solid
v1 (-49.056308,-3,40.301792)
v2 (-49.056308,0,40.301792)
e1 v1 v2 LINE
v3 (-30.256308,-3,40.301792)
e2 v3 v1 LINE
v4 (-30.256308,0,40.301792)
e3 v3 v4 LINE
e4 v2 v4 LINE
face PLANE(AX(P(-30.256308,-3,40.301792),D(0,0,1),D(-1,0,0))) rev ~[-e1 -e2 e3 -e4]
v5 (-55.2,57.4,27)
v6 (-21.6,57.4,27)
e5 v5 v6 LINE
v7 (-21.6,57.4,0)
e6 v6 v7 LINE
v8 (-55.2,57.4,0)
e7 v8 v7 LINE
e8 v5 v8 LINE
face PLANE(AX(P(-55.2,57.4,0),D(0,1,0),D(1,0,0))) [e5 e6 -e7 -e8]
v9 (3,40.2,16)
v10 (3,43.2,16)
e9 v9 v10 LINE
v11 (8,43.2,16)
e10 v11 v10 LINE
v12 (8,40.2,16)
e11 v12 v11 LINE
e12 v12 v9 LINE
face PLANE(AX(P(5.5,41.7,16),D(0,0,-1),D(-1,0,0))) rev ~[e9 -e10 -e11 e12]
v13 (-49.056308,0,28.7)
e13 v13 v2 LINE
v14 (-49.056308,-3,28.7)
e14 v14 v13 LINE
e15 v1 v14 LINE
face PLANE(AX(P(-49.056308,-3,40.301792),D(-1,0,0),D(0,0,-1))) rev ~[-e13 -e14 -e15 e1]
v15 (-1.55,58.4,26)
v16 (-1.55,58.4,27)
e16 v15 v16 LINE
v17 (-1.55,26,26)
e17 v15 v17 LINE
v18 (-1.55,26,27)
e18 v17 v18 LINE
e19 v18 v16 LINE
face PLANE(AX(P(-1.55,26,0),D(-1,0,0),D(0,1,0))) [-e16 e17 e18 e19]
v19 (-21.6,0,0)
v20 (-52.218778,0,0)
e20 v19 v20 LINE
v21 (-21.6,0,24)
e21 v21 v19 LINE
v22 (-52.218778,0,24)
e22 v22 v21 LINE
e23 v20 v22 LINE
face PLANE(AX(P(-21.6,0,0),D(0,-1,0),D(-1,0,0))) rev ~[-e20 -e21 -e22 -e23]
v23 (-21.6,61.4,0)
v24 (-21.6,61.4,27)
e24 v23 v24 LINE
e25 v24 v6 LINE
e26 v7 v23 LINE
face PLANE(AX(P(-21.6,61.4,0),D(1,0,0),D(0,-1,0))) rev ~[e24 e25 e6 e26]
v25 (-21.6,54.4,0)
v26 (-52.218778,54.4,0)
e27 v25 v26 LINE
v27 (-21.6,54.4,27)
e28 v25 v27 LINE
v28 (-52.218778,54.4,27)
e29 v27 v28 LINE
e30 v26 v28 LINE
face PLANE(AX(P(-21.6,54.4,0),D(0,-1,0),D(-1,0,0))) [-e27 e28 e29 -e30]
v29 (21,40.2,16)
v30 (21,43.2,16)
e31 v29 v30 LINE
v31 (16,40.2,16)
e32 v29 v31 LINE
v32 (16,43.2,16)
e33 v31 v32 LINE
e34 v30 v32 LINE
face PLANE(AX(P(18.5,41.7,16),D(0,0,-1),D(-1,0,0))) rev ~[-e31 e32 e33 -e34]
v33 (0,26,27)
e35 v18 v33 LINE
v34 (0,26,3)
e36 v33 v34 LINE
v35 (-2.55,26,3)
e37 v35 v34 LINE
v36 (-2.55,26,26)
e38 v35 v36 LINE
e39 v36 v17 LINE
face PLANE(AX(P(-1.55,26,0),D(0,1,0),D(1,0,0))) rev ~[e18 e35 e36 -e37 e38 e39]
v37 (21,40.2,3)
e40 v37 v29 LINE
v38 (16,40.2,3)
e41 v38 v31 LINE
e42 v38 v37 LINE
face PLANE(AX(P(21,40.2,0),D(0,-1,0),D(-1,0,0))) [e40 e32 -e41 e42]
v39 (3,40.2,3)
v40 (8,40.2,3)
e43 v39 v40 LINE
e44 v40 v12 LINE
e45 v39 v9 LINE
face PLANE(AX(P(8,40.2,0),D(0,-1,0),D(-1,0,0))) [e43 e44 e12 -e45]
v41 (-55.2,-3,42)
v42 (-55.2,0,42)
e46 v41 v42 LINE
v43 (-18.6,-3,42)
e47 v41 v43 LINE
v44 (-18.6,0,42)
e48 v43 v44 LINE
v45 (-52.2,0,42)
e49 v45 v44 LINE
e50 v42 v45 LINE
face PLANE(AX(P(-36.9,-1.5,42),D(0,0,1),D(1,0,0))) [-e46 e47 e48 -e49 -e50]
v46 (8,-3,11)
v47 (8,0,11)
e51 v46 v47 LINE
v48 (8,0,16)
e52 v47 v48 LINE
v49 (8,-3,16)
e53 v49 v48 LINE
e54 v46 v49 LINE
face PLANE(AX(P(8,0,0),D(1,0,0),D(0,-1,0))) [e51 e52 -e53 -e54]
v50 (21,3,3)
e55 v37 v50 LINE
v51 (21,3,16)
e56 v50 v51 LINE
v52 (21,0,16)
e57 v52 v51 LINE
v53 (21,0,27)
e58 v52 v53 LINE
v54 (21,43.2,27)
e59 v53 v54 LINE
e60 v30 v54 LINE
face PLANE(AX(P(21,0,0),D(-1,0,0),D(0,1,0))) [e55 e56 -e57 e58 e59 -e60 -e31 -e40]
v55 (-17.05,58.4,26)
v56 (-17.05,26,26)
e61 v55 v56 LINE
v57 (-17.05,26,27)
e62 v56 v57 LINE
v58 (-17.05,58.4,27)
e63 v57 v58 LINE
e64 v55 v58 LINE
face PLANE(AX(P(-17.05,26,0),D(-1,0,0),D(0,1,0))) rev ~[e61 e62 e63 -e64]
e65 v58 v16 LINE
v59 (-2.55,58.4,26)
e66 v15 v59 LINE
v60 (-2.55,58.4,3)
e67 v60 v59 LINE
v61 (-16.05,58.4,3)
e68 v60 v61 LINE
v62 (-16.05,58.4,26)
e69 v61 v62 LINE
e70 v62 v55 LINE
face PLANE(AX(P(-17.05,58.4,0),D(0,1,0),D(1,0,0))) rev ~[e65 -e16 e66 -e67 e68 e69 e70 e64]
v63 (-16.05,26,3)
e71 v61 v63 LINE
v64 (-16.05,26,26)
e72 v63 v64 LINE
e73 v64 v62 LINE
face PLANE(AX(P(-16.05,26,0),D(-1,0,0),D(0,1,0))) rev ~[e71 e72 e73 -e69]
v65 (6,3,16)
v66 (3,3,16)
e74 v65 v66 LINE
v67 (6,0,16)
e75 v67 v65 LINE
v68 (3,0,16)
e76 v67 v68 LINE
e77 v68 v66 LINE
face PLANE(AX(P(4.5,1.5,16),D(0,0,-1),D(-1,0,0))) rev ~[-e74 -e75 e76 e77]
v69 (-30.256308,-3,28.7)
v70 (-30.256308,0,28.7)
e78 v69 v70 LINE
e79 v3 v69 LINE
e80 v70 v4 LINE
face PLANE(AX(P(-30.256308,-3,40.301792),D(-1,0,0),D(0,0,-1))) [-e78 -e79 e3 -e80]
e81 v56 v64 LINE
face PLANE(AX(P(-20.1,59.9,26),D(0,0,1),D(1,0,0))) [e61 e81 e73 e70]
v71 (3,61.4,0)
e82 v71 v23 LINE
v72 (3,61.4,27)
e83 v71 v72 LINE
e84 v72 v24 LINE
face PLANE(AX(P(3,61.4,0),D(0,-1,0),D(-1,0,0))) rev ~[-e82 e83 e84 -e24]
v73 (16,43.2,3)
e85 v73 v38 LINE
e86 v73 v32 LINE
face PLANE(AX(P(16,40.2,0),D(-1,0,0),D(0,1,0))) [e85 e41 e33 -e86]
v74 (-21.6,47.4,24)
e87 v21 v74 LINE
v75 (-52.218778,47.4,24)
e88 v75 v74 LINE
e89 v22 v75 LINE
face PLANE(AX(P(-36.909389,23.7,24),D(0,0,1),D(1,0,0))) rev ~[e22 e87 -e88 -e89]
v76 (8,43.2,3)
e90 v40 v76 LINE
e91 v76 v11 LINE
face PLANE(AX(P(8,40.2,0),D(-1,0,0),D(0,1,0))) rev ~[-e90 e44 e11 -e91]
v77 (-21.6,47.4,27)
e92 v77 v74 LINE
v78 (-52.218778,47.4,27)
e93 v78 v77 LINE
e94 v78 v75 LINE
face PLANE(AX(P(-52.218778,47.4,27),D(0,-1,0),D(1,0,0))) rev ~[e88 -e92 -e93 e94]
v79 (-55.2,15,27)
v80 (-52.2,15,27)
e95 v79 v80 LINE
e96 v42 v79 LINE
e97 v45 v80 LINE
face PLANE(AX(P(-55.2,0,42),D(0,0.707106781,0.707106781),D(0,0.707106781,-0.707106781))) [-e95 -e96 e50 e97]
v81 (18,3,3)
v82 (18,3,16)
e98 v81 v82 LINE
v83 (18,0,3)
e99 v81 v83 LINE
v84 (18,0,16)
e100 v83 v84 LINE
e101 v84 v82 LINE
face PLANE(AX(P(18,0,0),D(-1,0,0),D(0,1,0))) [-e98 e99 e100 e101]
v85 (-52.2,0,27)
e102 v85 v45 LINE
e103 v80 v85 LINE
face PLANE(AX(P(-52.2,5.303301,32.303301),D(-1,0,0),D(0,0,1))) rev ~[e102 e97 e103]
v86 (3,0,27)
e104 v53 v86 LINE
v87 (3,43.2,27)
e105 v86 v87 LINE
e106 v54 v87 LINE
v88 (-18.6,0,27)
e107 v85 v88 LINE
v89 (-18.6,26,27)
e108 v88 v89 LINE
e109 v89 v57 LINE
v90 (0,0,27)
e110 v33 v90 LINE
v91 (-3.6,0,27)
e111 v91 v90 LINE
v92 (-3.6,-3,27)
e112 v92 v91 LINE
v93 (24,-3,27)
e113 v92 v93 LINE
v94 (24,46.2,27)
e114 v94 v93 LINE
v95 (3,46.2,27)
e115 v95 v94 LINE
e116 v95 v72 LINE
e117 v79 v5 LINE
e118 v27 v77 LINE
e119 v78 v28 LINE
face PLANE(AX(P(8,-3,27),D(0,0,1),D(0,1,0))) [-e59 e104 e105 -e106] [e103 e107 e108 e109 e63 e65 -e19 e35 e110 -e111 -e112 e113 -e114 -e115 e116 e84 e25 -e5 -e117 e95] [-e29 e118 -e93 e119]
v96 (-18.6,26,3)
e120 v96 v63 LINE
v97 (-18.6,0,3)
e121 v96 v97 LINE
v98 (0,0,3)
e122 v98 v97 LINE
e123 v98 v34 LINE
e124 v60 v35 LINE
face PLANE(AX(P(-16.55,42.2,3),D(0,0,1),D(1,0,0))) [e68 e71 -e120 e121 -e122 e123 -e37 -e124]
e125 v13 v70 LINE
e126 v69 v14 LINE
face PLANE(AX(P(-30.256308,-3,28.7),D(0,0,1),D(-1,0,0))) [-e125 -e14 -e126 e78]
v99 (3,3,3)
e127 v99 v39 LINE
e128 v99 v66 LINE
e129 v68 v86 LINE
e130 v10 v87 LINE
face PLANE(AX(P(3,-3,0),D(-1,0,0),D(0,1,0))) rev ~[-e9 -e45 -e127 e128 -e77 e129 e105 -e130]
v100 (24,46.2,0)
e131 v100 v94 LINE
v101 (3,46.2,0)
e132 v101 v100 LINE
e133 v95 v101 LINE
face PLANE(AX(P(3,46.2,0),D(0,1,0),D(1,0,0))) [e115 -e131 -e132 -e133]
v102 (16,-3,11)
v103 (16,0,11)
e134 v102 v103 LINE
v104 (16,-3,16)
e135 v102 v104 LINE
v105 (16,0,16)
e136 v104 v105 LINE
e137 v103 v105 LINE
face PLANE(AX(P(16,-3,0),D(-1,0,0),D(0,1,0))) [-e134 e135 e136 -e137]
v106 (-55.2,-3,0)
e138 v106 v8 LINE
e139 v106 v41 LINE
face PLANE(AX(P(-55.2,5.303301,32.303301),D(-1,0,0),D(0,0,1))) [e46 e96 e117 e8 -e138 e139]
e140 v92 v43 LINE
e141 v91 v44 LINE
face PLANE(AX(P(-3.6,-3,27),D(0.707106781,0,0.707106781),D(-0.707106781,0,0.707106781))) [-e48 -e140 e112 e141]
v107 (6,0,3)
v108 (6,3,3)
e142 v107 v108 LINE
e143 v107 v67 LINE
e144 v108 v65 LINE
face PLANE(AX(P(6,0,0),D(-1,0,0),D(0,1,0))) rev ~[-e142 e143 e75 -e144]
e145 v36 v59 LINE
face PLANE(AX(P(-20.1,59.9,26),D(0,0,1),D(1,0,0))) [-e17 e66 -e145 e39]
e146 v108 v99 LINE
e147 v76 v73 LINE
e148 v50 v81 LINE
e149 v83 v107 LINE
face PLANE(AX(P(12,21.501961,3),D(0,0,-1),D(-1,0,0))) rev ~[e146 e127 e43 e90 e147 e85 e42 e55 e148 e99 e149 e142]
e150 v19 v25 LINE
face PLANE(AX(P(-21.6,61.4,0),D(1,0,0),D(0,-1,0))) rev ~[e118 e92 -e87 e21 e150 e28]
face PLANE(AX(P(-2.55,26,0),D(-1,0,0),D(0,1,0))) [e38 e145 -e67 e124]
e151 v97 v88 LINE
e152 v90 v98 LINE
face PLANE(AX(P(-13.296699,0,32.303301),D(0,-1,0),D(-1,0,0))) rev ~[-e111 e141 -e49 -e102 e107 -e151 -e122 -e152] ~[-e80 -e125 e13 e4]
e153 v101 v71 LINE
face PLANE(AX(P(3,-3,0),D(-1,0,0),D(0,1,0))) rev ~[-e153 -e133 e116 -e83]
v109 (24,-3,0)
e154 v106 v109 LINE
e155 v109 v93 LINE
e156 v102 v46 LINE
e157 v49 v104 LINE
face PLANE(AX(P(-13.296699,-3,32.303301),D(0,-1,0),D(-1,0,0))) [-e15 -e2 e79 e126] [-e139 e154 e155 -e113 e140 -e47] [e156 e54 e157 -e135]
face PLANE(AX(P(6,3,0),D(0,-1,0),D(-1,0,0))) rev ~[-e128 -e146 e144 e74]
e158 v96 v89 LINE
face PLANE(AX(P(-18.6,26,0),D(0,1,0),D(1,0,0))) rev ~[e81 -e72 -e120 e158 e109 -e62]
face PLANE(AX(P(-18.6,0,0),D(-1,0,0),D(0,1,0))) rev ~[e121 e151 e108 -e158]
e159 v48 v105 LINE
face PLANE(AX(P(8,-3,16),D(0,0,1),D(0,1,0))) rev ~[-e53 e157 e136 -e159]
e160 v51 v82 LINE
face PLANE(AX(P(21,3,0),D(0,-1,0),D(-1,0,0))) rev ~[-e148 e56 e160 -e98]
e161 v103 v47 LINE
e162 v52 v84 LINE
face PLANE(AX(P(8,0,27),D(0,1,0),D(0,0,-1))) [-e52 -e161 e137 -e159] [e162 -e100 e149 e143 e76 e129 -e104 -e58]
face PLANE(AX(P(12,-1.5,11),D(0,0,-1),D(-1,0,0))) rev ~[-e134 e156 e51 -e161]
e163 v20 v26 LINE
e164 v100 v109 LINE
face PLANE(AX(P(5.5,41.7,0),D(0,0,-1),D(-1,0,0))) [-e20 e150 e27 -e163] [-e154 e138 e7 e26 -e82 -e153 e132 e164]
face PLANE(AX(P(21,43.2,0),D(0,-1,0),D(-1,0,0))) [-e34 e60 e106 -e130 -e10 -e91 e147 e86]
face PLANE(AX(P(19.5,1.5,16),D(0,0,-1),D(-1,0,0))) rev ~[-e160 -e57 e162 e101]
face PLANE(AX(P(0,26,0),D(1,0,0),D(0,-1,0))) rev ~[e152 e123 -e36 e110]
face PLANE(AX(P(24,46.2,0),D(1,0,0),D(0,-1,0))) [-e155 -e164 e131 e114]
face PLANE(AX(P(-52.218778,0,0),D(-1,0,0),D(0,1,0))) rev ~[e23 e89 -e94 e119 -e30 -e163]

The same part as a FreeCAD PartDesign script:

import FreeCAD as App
import Part
import Sketcher
Q = App.Units.Quantity

doc = App.newDocument("Part")
body = doc.addObject("PartDesign::Body", "Body")

sketch1 = doc.addObject("Sketcher::SketchObject", "Sketch")
body.addObject(sketch1)
sketch1.AttachmentSupport = (doc.XY_Plane, [""])
sketch1.MapMode = "FlatFace"
sketch1.addGeometry([
    Part.LineSegment(App.Vector(3, 61, 0), App.Vector(-22, 61, 0)),
    Part.LineSegment(App.Vector(-22, 61, 0), App.Vector(-22, -3, 0)),
    Part.LineSegment(App.Vector(-22, -3, 0), App.Vector(3, -3, 0)),
    Part.LineSegment(App.Vector(3, -3, 0), App.Vector(3, 61, 0)),
], False)
sketch1.addConstraint([
    Sketcher.Constraint("Coincident", 0, 2, 1, 1),
    Sketcher.Constraint("Coincident", 1, 2, 2, 1),
    Sketcher.Constraint("Coincident", 2, 2, 3, 1),
    Sketcher.Constraint("Coincident", 3, 2, 0, 1),
    Sketcher.Constraint("Horizontal", 0),
    Sketcher.Constraint("Vertical", 1),
    Sketcher.Constraint("Horizontal", 2),
    Sketcher.Constraint("Vertical", 3),
    Sketcher.Constraint("DistanceX", 0, 2, 0, 1, Q("24.6 mm")),
    Sketcher.Constraint("DistanceY", 1, 2, 1, 1, Q("64.4 mm")),
    Sketcher.Constraint("DistanceY", 1, 2, -1, 1, Q("3 mm")),
    Sketcher.Constraint("DistanceX", -1, 1, 2, 2, Q("3 mm")),
])
pad1 = doc.addObject("PartDesign::Pad", "Pad")
body.addObject(pad1)
pad1.Profile = sketch1
pad1.Length = 3

sketch2 = doc.addObject("Sketcher::SketchObject", "Sketch001")
body.addObject(sketch2)
sketch2.AttachmentSupport = (doc.XY_Plane, [""])
sketch2.MapMode = "FlatFace"
sketch2.addGeometry([
    Part.LineSegment(App.Vector(-21.6, 61.4, 0), App.Vector(-21.6, -3, 0)),
    Part.LineSegment(App.Vector(-21.6, -3, 0), App.Vector(3, -3, 0)),
    Part.LineSegment(App.Vector(3, -3, 0), App.Vector(3, 61.4, 0)),
    Part.LineSegment(App.Vector(3, 61.4, 0), App.Vector(-21.6, 61.4, 0)),
    Part.LineSegment(App.Vector(-18.6, 0, 0), App.Vector(-18.6, 26, 0)),
    Part.LineSegment(App.Vector(-18.6, 26, 0), App.Vector(-16.1, 26, 0)),
    Part.LineSegment(App.Vector(-16.1, 26, 0), App.Vector(-16.1, 58.4, 0)),
    Part.LineSegment(App.Vector(-16.1, 58.4, 0), App.Vector(-2.5, 58.4, 0)),
    Part.LineSegment(App.Vector(-2.5, 58.4, 0), App.Vector(-2.5, 26, 0)),
    Part.LineSegment(App.Vector(-2.5, 26, 0), App.Vector(0, 26, 0)),
    Part.LineSegment(App.Vector(0, 26, 0), App.Vector(0, 0, 0)),
    Part.LineSegment(App.Vector(0, 0, 0), App.Vector(-18.6, 0, 0)),
], False)
sketch2.addConstraint([
    Sketcher.Constraint("Coincident", 0, 2, 1, 1),
    Sketcher.Constraint("Coincident", 1, 2, 2, 1),
    Sketcher.Constraint("Coincident", 2, 2, 3, 1),
    Sketcher.Constraint("Coincident", 3, 2, 0, 1),
    Sketcher.Constraint("Coincident", 4, 2, 5, 1),
    Sketcher.Constraint("Coincident", 5, 2, 6, 1),
    Sketcher.Constraint("Coincident", 6, 2, 7, 1),
    Sketcher.Constraint("Coincident", 7, 2, 8, 1),
    Sketcher.Constraint("Coincident", 8, 2, 9, 1),
    Sketcher.Constraint("Coincident", 9, 2, 10, 1),
    Sketcher.Constraint("Coincident", 10, 2, 11, 1),
    Sketcher.Constraint("Coincident", 11, 2, 4, 1),
    Sketcher.Constraint("Vertical", 0),
    Sketcher.Constraint("Horizontal", 1),
    Sketcher.Constraint("Vertical", 2),
    Sketcher.Constraint("Horizontal", 3),
    Sketcher.Constraint("Vertical", 4),
    Sketcher.Constraint("Horizontal", 5),
    Sketcher.Constraint("Vertical", 6),
    Sketcher.Constraint("Horizontal", 7),
    Sketcher.Constraint("Vertical", 8),
    Sketcher.Constraint("Horizontal", 9),
    Sketcher.Constraint("Vertical", 10),
    Sketcher.Constraint("Horizontal", 11),
    Sketcher.Constraint("Coincident", 10, 2, -1, 1),
    Sketcher.Constraint("Horizontal", 5, 2, 8, 2),
    Sketcher.Constraint("Equal", 5, 9),
    Sketcher.Constraint("DistanceY", 4, 1, 4, 2, Q("26 mm")),
    Sketcher.Constraint("DistanceX", 1, 1, 1, 2, Q("24.6 mm")),
    Sketcher.Constraint("DistanceX", 7, 1, 7, 2, Q("13.5 mm")),
    Sketcher.Constraint("DistanceX", 11, 2, 11, 1, Q("18.6 mm")),
    Sketcher.Constraint("DistanceY", 0, 2, 0, 1, Q("64.4 mm")),
    Sketcher.Constraint("DistanceY", 6, 1, 6, 2, Q("32.4 mm")),
    Sketcher.Constraint("DistanceY", 0, 2, -1, 1, Q("3 mm")),
    Sketcher.Constraint("DistanceX", -1, 1, 1, 2, Q("3 mm")),
])
pad2 = doc.addObject("PartDesign::Pad", "Pad001")
body.addObject(pad2)
pad2.Profile = sketch2
pad2.Length = 26

sketch3 = doc.addObject("Sketcher::SketchObject", "Sketch002")
body.addObject(sketch3)
sketch3.AttachmentSupport = (doc.XY_Plane, [""])
sketch3.MapMode = "FlatFace"
sketch3.addGeometry([
    Part.LineSegment(App.Vector(-21.6, 0, 0), App.Vector(-21.6, -3, 0)),
    Part.LineSegment(App.Vector(-21.6, -3, 0), App.Vector(3, -3, 0)),
    Part.LineSegment(App.Vector(3, -3, 0), App.Vector(3, 0, 0)),
    Part.LineSegment(App.Vector(3, 0, 0), App.Vector(-21.6, 0, 0)),
], False)
sketch3.addConstraint([
    Sketcher.Constraint("Coincident", 0, 2, 1, 1),
    Sketcher.Constraint("Coincident", 1, 2, 2, 1),
    Sketcher.Constraint("Coincident", 2, 2, 3, 1),
    Sketcher.Constraint("Coincident", 3, 2, 0, 1),
    Sketcher.Constraint("Vertical", 0),
    Sketcher.Constraint("Horizontal", 1),
    Sketcher.Constraint("Vertical", 2),
    Sketcher.Constraint("Horizontal", 3),
    Sketcher.Constraint("PointOnObject", 2, 2, -1),
    Sketcher.Constraint("DistanceY", 0, 2, 0, 1, Q("3 mm")),
    Sketcher.Constraint("DistanceX", 1, 1, 1, 2, Q("24.6 mm")),
    Sketcher.Constraint("DistanceX", -1, 1, 1, 2, Q("3 mm")),
])
pad3 = doc.addObject("PartDesign::Pad", "Pad002")
body.addObject(pad3)
pad3.Profile = sketch3
pad3.Length = 35

sketch4 = doc.addObject("Sketcher::SketchObject", "Sketch003")
body.addObject(sketch4)
sketch4.AttachmentSupport = (doc.XY_Plane, [""])
sketch4.MapMode = "FlatFace"
sketch4.addGeometry([
    Part.LineSegment(App.Vector(3, 61.4, 0), App.Vector(-21.6, 61.4, 0)),
    Part.LineSegment(App.Vector(-21.6, 61.4, 0), App.Vector(-21.6, -3, 0)),
    Part.LineSegment(App.Vector(-21.6, -3, 0), App.Vector(3, -3, 0)),
    Part.LineSegment(App.Vector(3, -3, 0), App.Vector(3, 61.4, 0)),
    Part.LineSegment(App.Vector(-18.6, 26, 0), App.Vector(-17.1, 26, 0)),
    Part.LineSegment(App.Vector(-17.1, 26, 0), App.Vector(-17.1, 58.4, 0)),
    Part.LineSegment(App.Vector(-17.1, 58.4, 0), App.Vector(-1.6, 58.4, 0)),
    Part.LineSegment(App.Vector(-1.6, 58.4, 0), App.Vector(-1.6, 26, 0)),
    Part.LineSegment(App.Vector(-1.6, 26, 0), App.Vector(0, 26, 0)),
    Part.LineSegment(App.Vector(0, 26, 0), App.Vector(0, 0, 0)),
    Part.LineSegment(App.Vector(0, 0, 0), App.Vector(-18.6, 0, 0)),
    Part.LineSegment(App.Vector(-18.6, 0, 0), App.Vector(-18.6, 26, 0)),
], False)
sketch4.addConstraint([
    Sketcher.Constraint("Coincident", 0, 2, 1, 1),
    Sketcher.Constraint("Coincident", 1, 2, 2, 1),
    Sketcher.Constraint("Coincident", 2, 2, 3, 1),
    Sketcher.Constraint("Coincident", 3, 2, 0, 1),
    Sketcher.Constraint("Coincident", 4, 2, 5, 1),
    Sketcher.Constraint("Coincident", 5, 2, 6, 1),
    Sketcher.Constraint("Coincident", 6, 2, 7, 1),
    Sketcher.Constraint("Coincident", 7, 2, 8, 1),
    Sketcher.Constraint("Coincident", 8, 2, 9, 1),
    Sketcher.Constraint("Coincident", 9, 2, 10, 1),
    Sketcher.Constraint("Coincident", 10, 2, 11, 1),
    Sketcher.Constraint("Coincident", 11, 2, 4, 1),
    Sketcher.Constraint("Horizontal", 0),
    Sketcher.Constraint("Vertical", 1),
    Sketcher.Constraint("Horizontal", 2),
    Sketcher.Constraint("Vertical", 3),
    Sketcher.Constraint("Horizontal", 4),
    Sketcher.Constraint("Vertical", 5),
    Sketcher.Constraint("Horizontal", 6),
    Sketcher.Constraint("Vertical", 7),
    Sketcher.Constraint("Horizontal", 8),
    Sketcher.Constraint("Vertical", 9),
    Sketcher.Constraint("Horizontal", 10),
    Sketcher.Constraint("Vertical", 11),
    Sketcher.Constraint("Coincident", 9, 2, -1, 1),
    Sketcher.Constraint("Horizontal", 4, 2, 7, 2),
    Sketcher.Constraint("Equal", 4, 8),
    Sketcher.Constraint("DistanceY", 9, 2, 9, 1, Q("26 mm")),
    Sketcher.Constraint("DistanceX", 0, 2, 0, 1, Q("24.6 mm")),
    Sketcher.Constraint("DistanceX", 6, 1, 6, 2, Q("15.5 mm")),
    Sketcher.Constraint("DistanceX", 10, 2, 10, 1, Q("18.6 mm")),
    Sketcher.Constraint("DistanceY", 1, 2, 1, 1, Q("64.4 mm")),
    Sketcher.Constraint("DistanceY", 5, 1, 5, 2, Q("32.4 mm")),
    Sketcher.Constraint("DistanceY", 1, 2, -1, 1, Q("3 mm")),
    Sketcher.Constraint("DistanceX", -1, 1, 2, 2, Q("3 mm")),
])
pad4 = doc.addObject("PartDesign::Pad", "Pad003")
body.addObject(pad4)
pad4.Profile = sketch4
pad4.Length = 27

sketch5 = doc.addObject("Sketcher::SketchObject", "Sketch004")
body.addObject(sketch5)
sketch5.AttachmentSupport = (doc.XY_Plane, [""])
sketch5.MapMode = "FlatFace"
sketch5.addGeometry([
    Part.LineSegment(App.Vector(6, 0, 0), App.Vector(6, 3, 0)),
    Part.LineSegment(App.Vector(6, 3, 0), App.Vector(3, 3, 0)),
    Part.LineSegment(App.Vector(3, 3, 0), App.Vector(3, 40.2, 0)),
    Part.LineSegment(App.Vector(3, 40.2, 0), App.Vector(8, 40.2, 0)),
    Part.LineSegment(App.Vector(8, 40.2, 0), App.Vector(8, 43.2, 0)),
    Part.LineSegment(App.Vector(8, 43.2, 0), App.Vector(16, 43.2, 0)),
    Part.LineSegment(App.Vector(16, 43.2, 0), App.Vector(16, 40.2, 0)),
    Part.LineSegment(App.Vector(16, 40.2, 0), App.Vector(21, 40.2, 0)),
    Part.LineSegment(App.Vector(21, 40.2, 0), App.Vector(21, 3, 0)),
    Part.LineSegment(App.Vector(21, 3, 0), App.Vector(18, 3, 0)),
    Part.LineSegment(App.Vector(18, 3, 0), App.Vector(18, 0, 0)),
    Part.LineSegment(App.Vector(18, 0, 0), App.Vector(6, 0, 0)),
], False)
sketch5.addConstraint([
    Sketcher.Constraint("Coincident", 0, 2, 1, 1),
    Sketcher.Constraint("Coincident", 1, 2, 2, 1),
    Sketcher.Constraint("Coincident", 2, 2, 3, 1),
    Sketcher.Constraint("Coincident", 3, 2, 4, 1),
    Sketcher.Constraint("Coincident", 4, 2, 5, 1),
    Sketcher.Constraint("Coincident", 5, 2, 6, 1),
    Sketcher.Constraint("Coincident", 6, 2, 7, 1),
    Sketcher.Constraint("Coincident", 7, 2, 8, 1),
    Sketcher.Constraint("Coincident", 8, 2, 9, 1),
    Sketcher.Constraint("Coincident", 9, 2, 10, 1),
    Sketcher.Constraint("Coincident", 10, 2, 11, 1),
    Sketcher.Constraint("Coincident", 11, 2, 0, 1),
    Sketcher.Constraint("Vertical", 0),
    Sketcher.Constraint("Horizontal", 1),
    Sketcher.Constraint("Vertical", 2),
    Sketcher.Constraint("Horizontal", 3),
    Sketcher.Constraint("Vertical", 4),
    Sketcher.Constraint("Horizontal", 5),
    Sketcher.Constraint("Vertical", 6),
    Sketcher.Constraint("Horizontal", 7),
    Sketcher.Constraint("Vertical", 8),
    Sketcher.Constraint("Horizontal", 9),
    Sketcher.Constraint("Vertical", 10),
    Sketcher.Constraint("Horizontal", 11),
    Sketcher.Constraint("PointOnObject", 10, 2, -1),
    Sketcher.Constraint("Horizontal", 3, 2, 6, 2),
    Sketcher.Constraint("Horizontal", 1, 2, 8, 2),
    Sketcher.Constraint("Equal", 3, 7),
    Sketcher.Constraint("Equal", 1, 9),
    Sketcher.Constraint("Equal", 9, 0),
    Sketcher.Constraint("Equal", 0, 4),
    Sketcher.Constraint("DistanceX", 1, 2, 1, 1, Q("3 mm")),
    Sketcher.Constraint("DistanceX", 3, 1, 3, 2, Q("5 mm")),
    Sketcher.Constraint("DistanceX", 5, 1, 5, 2, Q("8 mm")),
    Sketcher.Constraint("DistanceY", 2, 1, 2, 2, Q("37.2 mm")),
    Sketcher.Constraint("DistanceX", -1, 1, 0, 2, Q("6 mm")),
])
pad5 = doc.addObject("PartDesign::Pad", "Pad004")
body.addObject(pad5)
pad5.Profile = sketch5
pad5.Length = 3

sketch6 = doc.addObject("Sketcher::SketchObject", "Sketch005")
body.addObject(sketch6)
sketch6.AttachmentSupport = (doc.XY_Plane, [""])
sketch6.MapMode = "FlatFace"
sketch6.addGeometry([
    Part.LineSegment(App.Vector(6, 3, 0), App.Vector(6, 0, 0)),
    Part.LineSegment(App.Vector(6, 0, 0), App.Vector(8, 0, 0)),
    Part.LineSegment(App.Vector(8, 0, 0), App.Vector(8, -3, 0)),
    Part.LineSegment(App.Vector(8, -3, 0), App.Vector(3, -3, 0)),
    Part.LineSegment(App.Vector(3, -3, 0), App.Vector(3, 3, 0)),
    Part.LineSegment(App.Vector(3, 3, 0), App.Vector(6, 3, 0)),
    Part.LineSegment(App.Vector(24, -3, 0), App.Vector(16, -3, 0)),
    Part.LineSegment(App.Vector(16, -3, 0), App.Vector(16, 0, 0)),
    Part.LineSegment(App.Vector(16, 0, 0), App.Vector(18, 0, 0)),
    Part.LineSegment(App.Vector(18, 0, 0), App.Vector(18, 3, 0)),
    Part.LineSegment(App.Vector(18, 3, 0), App.Vector(21, 3, 0)),
    Part.LineSegment(App.Vector(21, 3, 0), App.Vector(21, 40.2, 0)),
    Part.LineSegment(App.Vector(21, 40.2, 0), App.Vector(16, 40.2, 0)),
    Part.LineSegment(App.Vector(16, 40.2, 0), App.Vector(16, 43.2, 0)),
    Part.LineSegment(App.Vector(16, 43.2, 0), App.Vector(8, 43.2, 0)),
    Part.LineSegment(App.Vector(8, 43.2, 0), App.Vector(8, 40.2, 0)),
    Part.LineSegment(App.Vector(8, 40.2, 0), App.Vector(3, 40.2, 0)),
    Part.LineSegment(App.Vector(3, 40.2, 0), App.Vector(3, 46.2, 0)),
    Part.LineSegment(App.Vector(3, 46.2, 0), App.Vector(24, 46.2, 0)),
    Part.LineSegment(App.Vector(24, 46.2, 0), App.Vector(24, -3, 0)),
], False)
sketch6.addConstraint([
    Sketcher.Constraint("Coincident", 0, 2, 1, 1),
    Sketcher.Constraint("Coincident", 1, 2, 2, 1),
    Sketcher.Constraint("Coincident", 2, 2, 3, 1),
    Sketcher.Constraint("Coincident", 3, 2, 4, 1),
    Sketcher.Constraint("Coincident", 4, 2, 5, 1),
    Sketcher.Constraint("Coincident", 5, 2, 0, 1),
    Sketcher.Constraint("Coincident", 6, 2, 7, 1),
    Sketcher.Constraint("Coincident", 7, 2, 8, 1),
    Sketcher.Constraint("Coincident", 8, 2, 9, 1),
    Sketcher.Constraint("Coincident", 9, 2, 10, 1),
    Sketcher.Constraint("Coincident", 10, 2, 11, 1),
    Sketcher.Constraint("Coincident", 11, 2, 12, 1),
    Sketcher.Constraint("Coincident", 12, 2, 13, 1),
    Sketcher.Constraint("Coincident", 13, 2, 14, 1),
    Sketcher.Constraint("Coincident", 14, 2, 15, 1),
    Sketcher.Constraint("Coincident", 15, 2, 16, 1),
    Sketcher.Constraint("Coincident", 16, 2, 17, 1),
    Sketcher.Constraint("Coincident", 17, 2, 18, 1),
    Sketcher.Constraint("Coincident", 18, 2, 19, 1),
    Sketcher.Constraint("Coincident", 19, 2, 6, 1),
    Sketcher.Constraint("Vertical", 0),
    Sketcher.Constraint("Horizontal", 1),
    Sketcher.Constraint("Vertical", 2),
    Sketcher.Constraint("Horizontal", 3),
    Sketcher.Constraint("Vertical", 4),
    Sketcher.Constraint("Horizontal", 5),
    Sketcher.Constraint("Horizontal", 6),
    Sketcher.Constraint("Vertical", 7),
    Sketcher.Constraint("Horizontal", 8),
    Sketcher.Constraint("Vertical", 9),
    Sketcher.Constraint("Horizontal", 10),
    Sketcher.Constraint("Vertical", 11),
    Sketcher.Constraint("Horizontal", 12),
    Sketcher.Constraint("Vertical", 13),
    Sketcher.Constraint("Horizontal", 14),
    Sketcher.Constraint("Vertical", 15),
    Sketcher.Constraint("Horizontal", 16),
    Sketcher.Constraint("Vertical", 17),
    Sketcher.Constraint("Horizontal", 18),
    Sketcher.Constraint("Vertical", 19),
    Sketcher.Constraint("PointOnObject", 0, 2, -1),
    Sketcher.Constraint("PointOnObject", 7, 2, -1),
    Sketcher.Constraint("Horizontal", 3, 2, 6, 2),
    Sketcher.Constraint("Horizontal", 5, 2, 9, 2),
    Sketcher.Constraint("Horizontal", 12, 2, 15, 2),
    Sketcher.Constraint("Vertical", 7, 2, 12, 2),
    Sketcher.Constraint("Vertical", 2, 2, 14, 2),
    Sketcher.Constraint("Vertical", 4, 2, 16, 2),
    Sketcher.Constraint("Equal", 1, 8),
    Sketcher.Constraint("Equal", 5, 10),
    Sketcher.Constraint("Equal", 6, 14),
    Sketcher.Constraint("Equal", 10, 0),
    Sketcher.Constraint("Equal", 0, 2),
    Sketcher.Constraint("Equal", 9, 13),
    Sketcher.Constraint("Equal", 4, 17),
    Sketcher.Constraint("DistanceX", 1, 1, 1, 2, Q("2 mm")),
    Sketcher.Constraint("DistanceX", 3, 2, 3, 1, Q("5 mm")),
    Sketcher.Constraint("DistanceX", 6, 2, 6, 1, Q("8 mm")),
    Sketcher.Constraint("DistanceY", 11, 1, 11, 2, Q("37.2 mm")),
    Sketcher.Constraint("DistanceX", -1, 1, 0, 2, Q("6 mm")),
])
pad6 = doc.addObject("PartDesign::Pad", "Pad005")
body.addObject(pad6)
pad6.Profile = sketch6
pad6.Length = 2

sketch7 = doc.addObject("Sketcher::SketchObject", "Sketch006")
body.addObject(sketch7)
sketch7.AttachmentSupport = (doc.XY_Plane, [""])
sketch7.MapMode = "FlatFace"
sketch7.addGeometry([
    Part.LineSegment(App.Vector(16, 0, 0), App.Vector(16, -3, 0)),
    Part.LineSegment(App.Vector(16, -3, 0), App.Vector(8, -3, 0)),
    Part.LineSegment(App.Vector(8, -3, 0), App.Vector(8, 0, 0)),
    Part.LineSegment(App.Vector(8, 0, 0), App.Vector(16, 0, 0)),
], False)
sketch7.addConstraint([
    Sketcher.Constraint("Coincident", 0, 2, 1, 1),
    Sketcher.Constraint("Coincident", 1, 2, 2, 1),
    Sketcher.Constraint("Coincident", 2, 2, 3, 1),
    Sketcher.Constraint("Coincident", 3, 2, 0, 1),
    Sketcher.Constraint("Vertical", 0),
    Sketcher.Constraint("Horizontal", 1),
    Sketcher.Constraint("Vertical", 2),
    Sketcher.Constraint("Horizontal", 3),
    Sketcher.Constraint("PointOnObject", 2, 2, -1),
    Sketcher.Constraint("DistanceX", 1, 2, 1, 1, Q("8 mm")),
    Sketcher.Constraint("DistanceY", 0, 2, 0, 1, Q("3 mm")),
    Sketcher.Constraint("DistanceX", -1, 1, 0, 2, Q("16 mm")),
])
pad7 = doc.addObject("PartDesign::Pad", "Pad006")
body.addObject(pad7)
pad7.Profile = sketch7
pad7.Length = 11

sketch8 = doc.addObject("Sketcher::SketchObject", "Sketch007")
body.addObject(sketch8)
sketch8.AttachmentSupport = (doc.XY_Plane, [""])
sketch8.MapMode = "FlatFace"
sketch8.addGeometry([
    Part.LineSegment(App.Vector(3, -3, 0), App.Vector(3, 0, 0)),
    Part.LineSegment(App.Vector(3, 0, 0), App.Vector(8, 0, 0)),
    Part.LineSegment(App.Vector(8, 0, 0), App.Vector(8, -3, 0)),
    Part.LineSegment(App.Vector(8, -3, 0), App.Vector(3, -3, 0)),
    Part.LineSegment(App.Vector(16, -3, 0), App.Vector(16, 0, 0)),
    Part.LineSegment(App.Vector(16, 0, 0), App.Vector(21, 0, 0)),
    Part.LineSegment(App.Vector(21, 0, 0), App.Vector(21, 43.2, 0)),
    Part.LineSegment(App.Vector(21, 43.2, 0), App.Vector(3, 43.2, 0)),
    Part.LineSegment(App.Vector(3, 43.2, 0), App.Vector(3, 46.2, 0)),
    Part.LineSegment(App.Vector(3, 46.2, 0), App.Vector(24, 46.2, 0)),
    Part.LineSegment(App.Vector(24, 46.2, 0), App.Vector(24, -3, 0)),
    Part.LineSegment(App.Vector(24, -3, 0), App.Vector(16, -3, 0)),
], False)
sketch8.addConstraint([
    Sketcher.Constraint("Coincident", 0, 2, 1, 1),
    Sketcher.Constraint("Coincident", 1, 2, 2, 1),
    Sketcher.Constraint("Coincident", 2, 2, 3, 1),
    Sketcher.Constraint("Coincident", 3, 2, 0, 1),
    Sketcher.Constraint("Coincident", 4, 2, 5, 1),
    Sketcher.Constraint("Coincident", 5, 2, 6, 1),
    Sketcher.Constraint("Coincident", 6, 2, 7, 1),
    Sketcher.Constraint("Coincident", 7, 2, 8, 1),
    Sketcher.Constraint("Coincident", 8, 2, 9, 1),
    Sketcher.Constraint("Coincident", 9, 2, 10, 1),
    Sketcher.Constraint("Coincident", 10, 2, 11, 1),
    Sketcher.Constraint("Coincident", 11, 2, 4, 1),
    Sketcher.Constraint("Vertical", 0),
    Sketcher.Constraint("Horizontal", 1),
    Sketcher.Constraint("Vertical", 2),
    Sketcher.Constraint("Horizontal", 3),
    Sketcher.Constraint("Vertical", 4),
    Sketcher.Constraint("Horizontal", 5),
    Sketcher.Constraint("Vertical", 6),
    Sketcher.Constraint("Horizontal", 7),
    Sketcher.Constraint("Vertical", 8),
    Sketcher.Constraint("Horizontal", 9),
    Sketcher.Constraint("Vertical", 10),
    Sketcher.Constraint("Horizontal", 11),
    Sketcher.Constraint("PointOnObject", 0, 2, -1),
    Sketcher.Constraint("PointOnObject", 4, 2, -1),
    Sketcher.Constraint("Horizontal", 3, 2, 10, 2),
    Sketcher.Constraint("Vertical", 3, 2, 7, 2),
    Sketcher.Constraint("Equal", 3, 5),
    Sketcher.Constraint("Equal", 4, 8),
    Sketcher.Constraint("DistanceX", 1, 1, 1, 2, Q("5 mm")),
    Sketcher.Constraint("DistanceX", 7, 2, 7, 1, Q("18 mm")),
    Sketcher.Constraint("DistanceX", 9, 1, 9, 2, Q("21 mm")),
    Sketcher.Constraint("DistanceY", 0, 1, 0, 2, Q("3 mm")),
    Sketcher.Constraint("DistanceY", 6, 1, 6, 2, Q("43.2 mm")),
    Sketcher.Constraint("DistanceX", -1, 1, 0, 2, Q("3 mm")),
])
pad8 = doc.addObject("PartDesign::Pad", "Pad007")
body.addObject(pad8)
pad8.Profile = sketch8
pad8.Length = 27

sketch9 = doc.addObject("Sketcher::SketchObject", "Sketch008")
body.addObject(sketch9)
sketch9.AttachmentSupport = (doc.XY_Plane, [""])
sketch9.MapMode = "FlatFace"
sketch9.addGeometry([
    Part.LineSegment(App.Vector(-22, 57, 0), App.Vector(-22, -3, 0)),
    Part.LineSegment(App.Vector(-22, -3, 0), App.Vector(-55, -3, 0)),
    Part.LineSegment(App.Vector(-55, -3, 0), App.Vector(-55, 57, 0)),
    Part.LineSegment(App.Vector(-55, 57, 0), App.Vector(-22, 57, 0)),
], False)
sketch9.addConstraint([
    Sketcher.Constraint("Coincident", 0, 2, 1, 1),
    Sketcher.Constraint("Coincident", 1, 2, 2, 1),
    Sketcher.Constraint("Coincident", 2, 2, 3, 1),
    Sketcher.Constraint("Coincident", 3, 2, 0, 1),
    Sketcher.Constraint("Vertical", 0),
    Sketcher.Constraint("Horizontal", 1),
    Sketcher.Constraint("Vertical", 2),
    Sketcher.Constraint("Horizontal", 3),
    Sketcher.Constraint("DistanceX", 1, 2, 1, 1, Q("33.6 mm")),
    Sketcher.Constraint("DistanceY", 0, 2, 0, 1, Q("60.4 mm")),
    Sketcher.Constraint("DistanceY", 0, 2, -1, 1, Q("3 mm")),
    Sketcher.Constraint("DistanceX", 0, 2, -1, 1, Q("21.6 mm")),
])
pad9 = doc.addObject("PartDesign::Pad", "Pad008")
body.addObject(pad9)
pad9.Profile = sketch9
pad9.Length = 3

sketch10 = doc.addObject("Sketcher::SketchObject", "Sketch009")
body.addObject(sketch10)
sketch10.AttachmentSupport = (doc.XY_Plane, [""])
sketch10.MapMode = "FlatFace"
sketch10.addGeometry([
    Part.LineSegment(App.Vector(-22, 54, 0), App.Vector(-22, 0, 0)),
    Part.LineSegment(App.Vector(-22, 0, 0), App.Vector(-52, 0, 0)),
    Part.LineSegment(App.Vector(-52, 0, 0), App.Vector(-52, 54, 0)),
    Part.LineSegment(App.Vector(-52, 54, 0), App.Vector(-22, 54, 0)),
], False)
sketch10.addConstraint([
    Sketcher.Constraint("Coincident", 0, 2, 1, 1),
    Sketcher.Constraint("Coincident", 1, 2, 2, 1),
    Sketcher.Constraint("Coincident", 2, 2, 3, 1),
    Sketcher.Constraint("Coincident", 3, 2, 0, 1),
    Sketcher.Constraint("Vertical", 0),
    Sketcher.Constraint("Horizontal", 1),
    Sketcher.Constraint("Vertical", 2),
    Sketcher.Constraint("Horizontal", 3),
    Sketcher.Constraint("PointOnObject", 0, 2, -1),
    Sketcher.Constraint("DistanceY", 0, 2, 0, 1, Q("54.4 mm")),
    Sketcher.Constraint("DistanceX", 0, 2, -1, 1, Q("21.6 mm")),
    Sketcher.Constraint("DistanceX", 1, 2, 1, 1, Q("30.618778 mm")),
])
pocket1 = doc.addObject("PartDesign::Pocket", "Pocket")
body.addObject(pocket1)
pocket1.Profile = sketch10
pocket1.Length = 3
pocket1.Reversed = True

sketch11 = doc.addObject("Sketcher::SketchObject", "Sketch010")
body.addObject(sketch11)
sketch11.AttachmentSupport = (doc.XY_Plane, [""])
sketch11.MapMode = "FlatFace"
sketch11.addGeometry([
    Part.LineSegment(App.Vector(-21.6, 57.4, 0), App.Vector(-21.6, 54.4, 0)),
    Part.LineSegment(App.Vector(-21.6, 54.4, 0), App.Vector(-52.2, 54.4, 0)),
    Part.LineSegment(App.Vector(-52.2, 54.4, 0), App.Vector(-52.2, 0, 0)),
    Part.LineSegment(App.Vector(-52.2, 0, 0), App.Vector(-21.6, 0, 0)),
    Part.LineSegment(App.Vector(-21.6, 0, 0), App.Vector(-21.6, -3, 0)),
    Part.LineSegment(App.Vector(-21.6, -3, 0), App.Vector(-55.2, -3, 0)),
    Part.LineSegment(App.Vector(-55.2, -3, 0), App.Vector(-55.2, 57.4, 0)),
    Part.LineSegment(App.Vector(-55.2, 57.4, 0), App.Vector(-21.6, 57.4, 0)),
], False)
sketch11.addConstraint([
    Sketcher.Constraint("Coincident", 0, 2, 1, 1),
    Sketcher.Constraint("Coincident", 1, 2, 2, 1),
    Sketcher.Constraint("Coincident", 2, 2, 3, 1),
    Sketcher.Constraint("Coincident", 3, 2, 4, 1),
    Sketcher.Constraint("Coincident", 4, 2, 5, 1),
    Sketcher.Constraint("Coincident", 5, 2, 6, 1),
    Sketcher.Constraint("Coincident", 6, 2, 7, 1),
    Sketcher.Constraint("Coincident", 7, 2, 0, 1),
    Sketcher.Constraint("Vertical", 0),
    Sketcher.Constraint("Horizontal", 1),
    Sketcher.Constraint("Vertical", 2),
    Sketcher.Constraint("Horizontal", 3),
    Sketcher.Constraint("Vertical", 4),
    Sketcher.Constraint("Horizontal", 5),
    Sketcher.Constraint("Vertical", 6),
    Sketcher.Constraint("Horizontal", 7),
    Sketcher.Constraint("PointOnObject", 2, 2, -1),
    Sketcher.Constraint("Vertical", 0, 2, 3, 2),
    Sketcher.Constraint("Equal", 0, 4),
    Sketcher.Constraint("DistanceY", 0, 2, 0, 1, Q("3 mm")),
    Sketcher.Constraint("DistanceX", 5, 2, 5, 1, Q("33.6 mm")),
    Sketcher.Constraint("DistanceY", 2, 2, 2, 1, Q("54.4 mm")),
    Sketcher.Constraint("DistanceX", 0, 2, -1, 1, Q("21.6 mm")),
    Sketcher.Constraint("DistanceX", 1, 2, 1, 1, Q("30.618778 mm")),
])
pad10 = doc.addObject("PartDesign::Pad", "Pad009")
body.addObject(pad10)
pad10.Profile = sketch11
pad10.Length = 27

sketch12 = doc.addObject("Sketcher::SketchObject", "Sketch011")
body.addObject(sketch12)
sketch12.AttachmentSupport = (doc.XY_Plane, [""])
sketch12.MapMode = "FlatFace"
sketch12.AttachmentOffset = App.Placement(App.Vector(0, 0, 27), App.Rotation())
sketch12.addGeometry([
    Part.LineSegment(App.Vector(-52, 47, 0), App.Vector(-52, 0, 0)),
    Part.LineSegment(App.Vector(-52, 0, 0), App.Vector(-22, 0, 0)),
    Part.LineSegment(App.Vector(-22, 0, 0), App.Vector(-22, 47, 0)),
    Part.LineSegment(App.Vector(-22, 47, 0), App.Vector(-52, 47, 0)),
], False)
sketch12.addConstraint([
    Sketcher.Constraint("Coincident", 0, 2, 1, 1),
    Sketcher.Constraint("Coincident", 1, 2, 2, 1),
    Sketcher.Constraint("Coincident", 2, 2, 3, 1),
    Sketcher.Constraint("Coincident", 3, 2, 0, 1),
    Sketcher.Constraint("Vertical", 0),
    Sketcher.Constraint("Horizontal", 1),
    Sketcher.Constraint("Vertical", 2),
    Sketcher.Constraint("Horizontal", 3),
    Sketcher.Constraint("PointOnObject", 0, 2, -1),
    Sketcher.Constraint("DistanceY", 0, 2, 0, 1, Q("47.4 mm")),
    Sketcher.Constraint("DistanceX", 1, 2, -1, 1, Q("21.6 mm")),
    Sketcher.Constraint("DistanceX", 1, 1, 1, 2, Q("30.618778 mm")),
])
pad11 = doc.addObject("PartDesign::Pad", "Pad010")
body.addObject(pad11)
pad11.Profile = sketch12
pad11.Length = 3
pad11.Reversed = True

sketch13 = doc.addObject("Sketcher::SketchObject", "Sketch012")
body.addObject(sketch13)
sketch13.AttachmentSupport = (doc.XZ_Plane, [""])
sketch13.MapMode = "FlatFace"
sketch13.AttachmentOffset = App.Placement(App.Vector(0, 0, 3), App.Rotation())
sketch13.addGeometry([
    Part.LineSegment(App.Vector(-22, 35, 0), App.Vector(-22, 27, 0)),
    Part.LineSegment(App.Vector(-22, 27, 0), App.Vector(3, 27, 0)),
    Part.LineSegment(App.Vector(3, 27, 0), App.Vector(3, 35, 0)),
    Part.LineSegment(App.Vector(3, 35, 0), App.Vector(-22, 35, 0)),
], False)
sketch13.addConstraint([
    Sketcher.Constraint("Coincident", 0, 2, 1, 1),
    Sketcher.Constraint("Coincident", 1, 2, 2, 1),
    Sketcher.Constraint("Coincident", 2, 2, 3, 1),
    Sketcher.Constraint("Coincident", 3, 2, 0, 1),
    Sketcher.Constraint("Vertical", 0),
    Sketcher.Constraint("Horizontal", 1),
    Sketcher.Constraint("Vertical", 2),
    Sketcher.Constraint("Horizontal", 3),
    Sketcher.Constraint("DistanceY", 0, 2, 0, 1, Q("8 mm")),
    Sketcher.Constraint("DistanceX", 1, 1, 1, 2, Q("24.6 mm")),
    Sketcher.Constraint("DistanceY", -1, 1, 0, 2, Q("27 mm")),
    Sketcher.Constraint("DistanceX", -1, 1, 1, 2, Q("3 mm")),
])
pocket2 = doc.addObject("PartDesign::Pocket", "Pocket001")
body.addObject(pocket2)
pocket2.Profile = sketch13
pocket2.Length = 3

sketch14 = doc.addObject("Sketcher::SketchObject", "Sketch013")
body.addObject(sketch14)
sketch14.AttachmentSupport = (doc.YZ_Plane, [""])
sketch14.MapMode = "FlatFace"
sketch14.AttachmentOffset = App.Placement(App.Vector(0, 0, 8), App.Rotation())
sketch14.addGeometry([
    Part.LineSegment(App.Vector(0, 27, 0), App.Vector(-3, 27, 0)),
    Part.LineSegment(App.Vector(-3, 27, 0), App.Vector(-3, 16, 0)),
    Part.LineSegment(App.Vector(-3, 16, 0), App.Vector(0, 16, 0)),
    Part.LineSegment(App.Vector(0, 16, 0), App.Vector(0, 27, 0)),
], False)
sketch14.addConstraint([
    Sketcher.Constraint("Coincident", 0, 2, 1, 1),
    Sketcher.Constraint("Coincident", 1, 2, 2, 1),
    Sketcher.Constraint("Coincident", 2, 2, 3, 1),
    Sketcher.Constraint("Coincident", 3, 2, 0, 1),
    Sketcher.Constraint("Horizontal", 0),
    Sketcher.Constraint("Vertical", 1),
    Sketcher.Constraint("Horizontal", 2),
    Sketcher.Constraint("Vertical", 3),
    Sketcher.Constraint("PointOnObject", 2, 2, -2),
    Sketcher.Constraint("DistanceX", 0, 2, 0, 1, Q("3 mm")),
    Sketcher.Constraint("DistanceY", 1, 2, 1, 1, Q("11 mm")),
    Sketcher.Constraint("DistanceY", -1, 1, 0, 2, Q("27 mm")),
])
pad12 = doc.addObject("PartDesign::Pad", "Pad011")
body.addObject(pad12)
pad12.Profile = sketch14
pad12.Length = 8

sketch15 = doc.addObject("Sketcher::SketchObject", "Sketch014")
body.addObject(sketch15)
sketch15.AttachmentSupport = (doc.XY_Plane, [""])
sketch15.MapMode = "FlatFace"
sketch15.addGeometry([
    Part.LineSegment(App.Vector(8, 43.2, 0), App.Vector(8, 40.2, 0)),
    Part.LineSegment(App.Vector(8, 40.2, 0), App.Vector(3, 40.2, 0)),
    Part.LineSegment(App.Vector(3, 40.2, 0), App.Vector(3, 43.2, 0)),
    Part.LineSegment(App.Vector(3, 43.2, 0), App.Vector(8, 43.2, 0)),
    Part.LineSegment(App.Vector(21, 43.2, 0), App.Vector(21, 40.2, 0)),
    Part.LineSegment(App.Vector(21, 40.2, 0), App.Vector(16, 40.2, 0)),
    Part.LineSegment(App.Vector(16, 40.2, 0), App.Vector(16, 43.2, 0)),
    Part.LineSegment(App.Vector(16, 43.2, 0), App.Vector(21, 43.2, 0)),
    Part.LineSegment(App.Vector(21, 3, 0), App.Vector(21, 0, 0)),
    Part.LineSegment(App.Vector(21, 0, 0), App.Vector(18, 0, 0)),
    Part.LineSegment(App.Vector(18, 0, 0), App.Vector(18, 3, 0)),
    Part.LineSegment(App.Vector(18, 3, 0), App.Vector(21, 3, 0)),
    Part.LineSegment(App.Vector(6, 3, 0), App.Vector(6, 0, 0)),
    Part.LineSegment(App.Vector(6, 0, 0), App.Vector(3, 0, 0)),
    Part.LineSegment(App.Vector(3, 0, 0), App.Vector(3, 3, 0)),
    Part.LineSegment(App.Vector(3, 3, 0), App.Vector(6, 3, 0)),
], False)
sketch15.addConstraint([
    Sketcher.Constraint("Coincident", 0, 2, 1, 1),
    Sketcher.Constraint("Coincident", 1, 2, 2, 1),
    Sketcher.Constraint("Coincident", 2, 2, 3, 1),
    Sketcher.Constraint("Coincident", 3, 2, 0, 1),
    Sketcher.Constraint("Coincident", 4, 2, 5, 1),
    Sketcher.Constraint("Coincident", 5, 2, 6, 1),
    Sketcher.Constraint("Coincident", 6, 2, 7, 1),
    Sketcher.Constraint("Coincident", 7, 2, 4, 1),
    Sketcher.Constraint("Coincident", 8, 2, 9, 1),
    Sketcher.Constraint("Coincident", 9, 2, 10, 1),
    Sketcher.Constraint("Coincident", 10, 2, 11, 1),
    Sketcher.Constraint("Coincident", 11, 2, 8, 1),
    Sketcher.Constraint("Coincident", 12, 2, 13, 1),
    Sketcher.Constraint("Coincident", 13, 2, 14, 1),
    Sketcher.Constraint("Coincident", 14, 2, 15, 1),
    Sketcher.Constraint("Coincident", 15, 2, 12, 1),
    Sketcher.Constraint("Vertical", 0),
    Sketcher.Constraint("Horizontal", 1),
    Sketcher.Constraint("Vertical", 2),
    Sketcher.Constraint("Horizontal", 3),
    Sketcher.Constraint("Vertical", 4),
    Sketcher.Constraint("Horizontal", 5),
    Sketcher.Constraint("Vertical", 6),
    Sketcher.Constraint("Horizontal", 7),
    Sketcher.Constraint("Vertical", 8),
    Sketcher.Constraint("Horizontal", 9),
    Sketcher.Constraint("Vertical", 10),
    Sketcher.Constraint("Horizontal", 11),
    Sketcher.Constraint("Vertical", 12),
    Sketcher.Constraint("Horizontal", 13),
    Sketcher.Constraint("Vertical", 14),
    Sketcher.Constraint("Horizontal", 15),
    Sketcher.Constraint("PointOnObject", 8, 2, -1),
    Sketcher.Constraint("PointOnObject", 12, 2, -1),
    Sketcher.Constraint("Horizontal", 1, 2, 4, 2),
    Sketcher.Constraint("Horizontal", 3, 2, 6, 2),
    Sketcher.Constraint("Horizontal", 11, 2, 14, 2),
    Sketcher.Constraint("Vertical", 7, 2, 8, 2),
    Sketcher.Constraint("Vertical", 2, 2, 13, 2),
    Sketcher.Constraint("Equal", 3, 5),
    Sketcher.Constraint("Equal", 11, 13),
    Sketcher.Constraint("Equal", 15, 0),
    Sketcher.Constraint("Equal", 6, 8),
    Sketcher.Constraint("DistanceX", 1, 2, 1, 1, Q("5 mm")),
    Sketcher.Constraint("DistanceX", 9, 2, 9, 1, Q("3 mm")),
    Sketcher.Constraint("DistanceX", -1, 1, 0, 2, Q("8 mm")),
    Sketcher.Constraint("DistanceX", -1, 1, 4, 2, Q("21 mm")),
    Sketcher.Constraint("DistanceY", -1, 1, 0, 2, Q("40.2 mm")),
])
pad13 = doc.addObject("PartDesign::Pad", "Pad012")
body.addObject(pad13)
pad13.Profile = sketch15
pad13.Length = 16

sketch16 = doc.addObject("Sketcher::SketchObject", "Sketch015")
body.addObject(sketch16)
sketch16.AttachmentSupport = (doc.XY_Plane, [""])
sketch16.MapMode = "FlatFace"
sketch16.AttachmentOffset = App.Placement(App.Vector(0, 0, 27), App.Rotation())
sketch16.addGeometry([
    Part.LineSegment(App.Vector(-55.2, 0, 0), App.Vector(-55.2, -3, 0)),
    Part.LineSegment(App.Vector(-55.2, -3, 0), App.Vector(-18.6, -3, 0)),
    Part.LineSegment(App.Vector(-18.6, -3, 0), App.Vector(-18.6, 0, 0)),
    Part.LineSegment(App.Vector(-18.6, 0, 0), App.Vector(-55.2, 0, 0)),
], False)
sketch16.addConstraint([
    Sketcher.Constraint("Coincident", 0, 2, 1, 1),
    Sketcher.Constraint("Coincident", 1, 2, 2, 1),
    Sketcher.Constraint("Coincident", 2, 2, 3, 1),
    Sketcher.Constraint("Coincident", 3, 2, 0, 1),
    Sketcher.Constraint("Vertical", 0),
    Sketcher.Constraint("Horizontal", 1),
    Sketcher.Constraint("Vertical", 2),
    Sketcher.Constraint("Horizontal", 3),
    Sketcher.Constraint("PointOnObject", 2, 2, -1),
    Sketcher.Constraint("DistanceY", 0, 2, 0, 1, Q("3 mm")),
    Sketcher.Constraint("DistanceX", 1, 1, 1, 2, Q("36.6 mm")),
    Sketcher.Constraint("DistanceX", 0, 2, -1, 1, Q("55.2 mm")),
])
pad14 = doc.addObject("PartDesign::Pad", "Pad013")
body.addObject(pad14)
pad14.Profile = sketch16
pad14.Length = 15

sketch17 = doc.addObject("Sketcher::SketchObject", "Sketch016")
body.addObject(sketch17)
sketch17.AttachmentSupport = (doc.XZ_Plane, [""])
sketch17.MapMode = "FlatFace"
sketch17.AttachmentOffset = App.Placement(App.Vector(0, 0, 3), App.Rotation())
sketch17.addGeometry([
    Part.LineSegment(App.Vector(-30, 29, 0), App.Vector(-30, 40, 0)),
    Part.LineSegment(App.Vector(-30, 40, 0), App.Vector(-49, 40, 0)),
    Part.LineSegment(App.Vector(-49, 40, 0), App.Vector(-49, 29, 0)),
    Part.LineSegment(App.Vector(-49, 29, 0), App.Vector(-30, 29, 0)),
], False)
sketch17.addConstraint([
    Sketcher.Constraint("Coincident", 0, 2, 1, 1),
    Sketcher.Constraint("Coincident", 1, 2, 2, 1),
    Sketcher.Constraint("Coincident", 2, 2, 3, 1),
    Sketcher.Constraint("Coincident", 3, 2, 0, 1),
    Sketcher.Constraint("Vertical", 0),
    Sketcher.Constraint("Horizontal", 1),
    Sketcher.Constraint("Vertical", 2),
    Sketcher.Constraint("Horizontal", 3),
    Sketcher.Constraint("DistanceX", 1, 2, 1, 1, Q("18.8 mm")),
    Sketcher.Constraint("DistanceY", -1, 1, 2, 2, Q("28.7 mm")),
    Sketcher.Constraint("DistanceY", 0, 1, 0, 2, Q("11.601792 mm")),
    Sketcher.Constraint("DistanceX", 0, 2, -1, 1, Q("30.256308 mm")),
])
pocket3 = doc.addObject("PartDesign::Pocket", "Pocket002")
body.addObject(pocket3)
pocket3.Profile = sketch17
pocket3.Length = 15

sketch18 = doc.addObject("Sketcher::SketchObject", "Sketch017")
body.addObject(sketch18)
sketch18.AttachmentSupport = (doc.XZ_Plane, [""])
sketch18.MapMode = "FlatFace"
sketch18.AttachmentOffset = App.Placement(App.Vector(0, 0, 3), App.Rotation())
sketch18.addGeometry([
    Part.LineSegment(App.Vector(-19, 42, 0), App.Vector(-19, 27, 0)),
    Part.LineSegment(App.Vector(-19, 27, 0), App.Vector(-4, 27, 0)),
    Part.LineSegment(App.Vector(-4, 27, 0), App.Vector(-19, 42, 0)),
], False)
sketch18.addConstraint([
    Sketcher.Constraint("Coincident", 0, 2, 1, 1),
    Sketcher.Constraint("Coincident", 1, 2, 2, 1),
    Sketcher.Constraint("Coincident", 2, 2, 0, 1),
    Sketcher.Constraint("Vertical", 0),
    Sketcher.Constraint("Horizontal", 1),
    Sketcher.Constraint("Equal", 1, 0),
    Sketcher.Constraint("DistanceX", 1, 1, 1, 2, Q("15 mm")),
    Sketcher.Constraint("DistanceY", -1, 1, 0, 2, Q("27 mm")),
    Sketcher.Constraint("DistanceX", 0, 2, -1, 1, Q("18.6 mm")),
])
pad15 = doc.addObject("PartDesign::Pad", "Pad014")
body.addObject(pad15)
pad15.Profile = sketch18
pad15.Length = 3
pad15.Reversed = True

sketch19 = doc.addObject("Sketcher::SketchObject", "Sketch018")
body.addObject(sketch19)
sketch19.AttachmentSupport = (doc.YZ_Plane, [""])
sketch19.MapMode = "FlatFace"
sketch19.AttachmentOffset = App.Placement(App.Vector(0, 0, -55.2), App.Rotation())
sketch19.addGeometry([
    Part.LineSegment(App.Vector(0, 27, 0), App.Vector(0, 42, 0)),
    Part.LineSegment(App.Vector(0, 42, 0), App.Vector(15, 27, 0)),
    Part.LineSegment(App.Vector(15, 27, 0), App.Vector(0, 27, 0)),
], False)
sketch19.addConstraint([
    Sketcher.Constraint("Coincident", 0, 2, 1, 1),
    Sketcher.Constraint("Coincident", 1, 2, 2, 1),
    Sketcher.Constraint("Coincident", 2, 2, 0, 1),
    Sketcher.Constraint("Vertical", 0),
    Sketcher.Constraint("Horizontal", 2),
    Sketcher.Constraint("PointOnObject", 0, 2, -2),
    Sketcher.Constraint("Equal", 2, 0),
    Sketcher.Constraint("DistanceX", 2, 2, 2, 1, Q("15 mm")),
    Sketcher.Constraint("DistanceY", -1, 1, 0, 2, Q("42 mm")),
])
pad16 = doc.addObject("PartDesign::Pad", "Pad015")
body.addObject(pad16)
pad16.Profile = sketch19
pad16.Length = 3

doc.recompute()
